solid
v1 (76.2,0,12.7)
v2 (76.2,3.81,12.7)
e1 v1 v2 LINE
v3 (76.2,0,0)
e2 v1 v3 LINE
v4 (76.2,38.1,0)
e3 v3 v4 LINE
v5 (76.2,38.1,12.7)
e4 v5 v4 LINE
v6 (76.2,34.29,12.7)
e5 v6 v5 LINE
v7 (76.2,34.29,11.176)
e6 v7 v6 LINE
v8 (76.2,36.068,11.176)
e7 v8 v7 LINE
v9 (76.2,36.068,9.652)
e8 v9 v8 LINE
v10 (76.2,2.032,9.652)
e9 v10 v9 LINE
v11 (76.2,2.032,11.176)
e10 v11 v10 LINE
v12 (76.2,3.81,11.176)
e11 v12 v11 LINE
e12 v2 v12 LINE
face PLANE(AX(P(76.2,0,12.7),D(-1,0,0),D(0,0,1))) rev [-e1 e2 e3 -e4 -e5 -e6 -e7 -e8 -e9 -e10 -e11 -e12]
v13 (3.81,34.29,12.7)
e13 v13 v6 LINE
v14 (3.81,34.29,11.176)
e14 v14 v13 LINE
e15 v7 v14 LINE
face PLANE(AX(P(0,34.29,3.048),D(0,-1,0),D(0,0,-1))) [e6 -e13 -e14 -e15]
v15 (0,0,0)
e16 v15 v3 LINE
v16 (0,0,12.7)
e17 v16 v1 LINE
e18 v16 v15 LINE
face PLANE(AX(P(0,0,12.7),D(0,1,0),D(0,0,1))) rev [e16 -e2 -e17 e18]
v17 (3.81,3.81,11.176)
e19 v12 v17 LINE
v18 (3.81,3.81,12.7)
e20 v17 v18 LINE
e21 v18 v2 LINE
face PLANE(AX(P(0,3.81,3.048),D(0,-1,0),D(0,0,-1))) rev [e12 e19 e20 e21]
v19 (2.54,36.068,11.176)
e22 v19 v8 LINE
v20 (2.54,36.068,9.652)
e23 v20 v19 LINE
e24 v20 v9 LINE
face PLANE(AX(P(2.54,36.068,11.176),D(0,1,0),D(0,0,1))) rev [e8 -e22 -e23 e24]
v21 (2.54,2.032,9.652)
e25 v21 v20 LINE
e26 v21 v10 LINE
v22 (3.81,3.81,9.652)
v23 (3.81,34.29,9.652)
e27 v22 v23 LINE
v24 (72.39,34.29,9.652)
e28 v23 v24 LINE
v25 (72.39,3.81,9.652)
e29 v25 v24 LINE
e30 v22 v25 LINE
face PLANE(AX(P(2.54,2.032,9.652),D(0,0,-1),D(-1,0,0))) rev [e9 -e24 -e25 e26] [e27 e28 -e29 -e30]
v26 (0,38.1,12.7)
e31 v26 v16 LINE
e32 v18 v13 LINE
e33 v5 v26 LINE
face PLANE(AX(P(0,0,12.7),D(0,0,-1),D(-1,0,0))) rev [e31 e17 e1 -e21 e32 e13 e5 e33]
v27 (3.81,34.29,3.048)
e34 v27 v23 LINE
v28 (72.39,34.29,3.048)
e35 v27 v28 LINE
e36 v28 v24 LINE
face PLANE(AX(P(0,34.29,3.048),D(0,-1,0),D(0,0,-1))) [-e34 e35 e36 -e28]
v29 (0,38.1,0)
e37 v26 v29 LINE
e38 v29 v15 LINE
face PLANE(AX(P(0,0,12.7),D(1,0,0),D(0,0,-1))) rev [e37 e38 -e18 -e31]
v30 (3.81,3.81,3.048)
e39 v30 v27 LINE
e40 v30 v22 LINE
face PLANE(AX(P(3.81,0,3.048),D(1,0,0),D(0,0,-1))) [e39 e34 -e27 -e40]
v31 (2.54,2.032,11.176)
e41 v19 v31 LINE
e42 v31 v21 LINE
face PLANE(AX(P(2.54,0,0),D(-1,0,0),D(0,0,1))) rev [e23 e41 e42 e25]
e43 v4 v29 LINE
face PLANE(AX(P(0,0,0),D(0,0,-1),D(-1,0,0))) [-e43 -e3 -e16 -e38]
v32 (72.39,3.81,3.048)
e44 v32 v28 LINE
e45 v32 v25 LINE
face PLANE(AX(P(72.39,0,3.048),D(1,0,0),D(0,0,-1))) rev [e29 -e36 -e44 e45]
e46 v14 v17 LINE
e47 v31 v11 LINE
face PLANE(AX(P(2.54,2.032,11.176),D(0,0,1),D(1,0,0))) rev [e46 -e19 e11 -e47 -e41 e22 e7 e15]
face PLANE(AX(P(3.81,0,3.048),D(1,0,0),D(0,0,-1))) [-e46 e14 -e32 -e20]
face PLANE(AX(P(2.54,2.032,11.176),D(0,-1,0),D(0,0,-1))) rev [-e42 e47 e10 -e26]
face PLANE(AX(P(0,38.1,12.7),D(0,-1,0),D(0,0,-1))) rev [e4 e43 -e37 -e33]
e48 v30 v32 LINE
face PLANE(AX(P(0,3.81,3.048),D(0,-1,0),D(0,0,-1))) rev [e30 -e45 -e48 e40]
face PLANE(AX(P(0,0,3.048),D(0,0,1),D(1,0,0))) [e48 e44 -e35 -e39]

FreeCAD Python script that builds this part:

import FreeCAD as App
import Part
import Sketcher

V = App.Vector
Q = App.Units.Quantity


def add_polygon(sketch, points):
    """Adds a closed chain of lines whose ends are joined by coincident constraints."""
    first, n = sketch.GeometryCount, len(points)
    for a, b in zip(points, points[1:] + points[:1]):
        sketch.addGeometry(Part.LineSegment(App.Vector(*a, 0), App.Vector(*b, 0)), False)
    for i in range(n):
        sketch.addConstraint(Sketcher.Constraint("Coincident", first + i, 2, first + (i + 1) % n, 1))

doc = App.newDocument("Part")
body = doc.addObject("PartDesign::Body", "Body")

# Sketch on XY plane
sketch1 = body.newObject("Sketcher::SketchObject", "Sketch")
sketch1.AttachmentSupport = (doc.getObject("XY_Plane"), [""])
sketch1.MapMode = "FlatFace"
add_polygon(sketch1, [(0, 38.1), (0, 0), (76.2, 0), (76.2, 38.1)])  # lines 0-3
sketch1.addConstraint([
    Sketcher.Constraint("Vertical", 0),
    Sketcher.Constraint("Horizontal", 1),
    Sketcher.Constraint("Vertical", 2),
    Sketcher.Constraint("Horizontal", 3),
    Sketcher.Constraint("Coincident", 0, 2, -1, 1),
    Sketcher.Constraint("DistanceX", 1, 1, 1, 2, Q("3 in")),
    Sketcher.Constraint("DistanceY", 0, 2, 0, 1, Q("1.5 in")),
])
pad1 = body.newObject("PartDesign::Pad", "Pad")
pad1.Profile = sketch1
pad1.Length = Q("0.5 in")

# Sketch on XY plane
sketch2 = body.newObject("Sketcher::SketchObject", "Sketch001")
sketch2.AttachmentSupport = (doc.getObject("XY_Plane"), [""])
sketch2.MapMode = "FlatFace"
sketch2.AttachmentOffset = App.Placement(V(0, 0, 0.5 * 25.4), App.Rotation())
add_polygon(sketch2, [(3.81, 34.29), (3.81, 3.81), (72.39, 3.81), (72.39, 34.29)])  # lines 0-3
sketch2.addConstraint([
    Sketcher.Constraint("Vertical", 0),
    Sketcher.Constraint("Horizontal", 1),
    Sketcher.Constraint("Vertical", 2),
    Sketcher.Constraint("Horizontal", 3),
    Sketcher.Constraint("DistanceX", 1, 1, 1, 2, Q("2.7 in")),
    Sketcher.Constraint("DistanceY", 0, 2, 0, 1, Q("1.2 in")),
    Sketcher.Constraint("DistanceX", -1, 1, 0, 2, Q("0.15 in")),
    Sketcher.Constraint("DistanceY", -1, 1, 0, 2, Q("0.15 in")),
])
pocket1 = body.newObject("PartDesign::Pocket", "Pocket")
pocket1.Profile = sketch2
pocket1.Length = Q("0.38 in")

# Sketch on YZ plane
sketch3 = body.newObject("Sketcher::SketchObject", "Sketch002")
sketch3.AttachmentSupport = (doc.getObject("YZ_Plane"), [""])
sketch3.MapMode = "FlatFace"
sketch3.AttachmentOffset = App.Placement(V(0, 0, 3 * 25.4), App.Rotation())
add_polygon(sketch3, [(34.29, 12.7), (3.81, 12.7), (3.81, 10.16), (34.29, 10.16)])  # lines 0-3
sketch3.addConstraint([
    Sketcher.Constraint("Horizontal", 0),
    Sketcher.Constraint("Vertical", 1),
    Sketcher.Constraint("Horizontal", 2),
    Sketcher.Constraint("Vertical", 3),
    Sketcher.Constraint("DistanceX", 0, 2, 0, 1, Q("1.2 in")),
    Sketcher.Constraint("DistanceY", 1, 2, 1, 1, Q("0.1 in")),
    Sketcher.Constraint("DistanceY", -1, 1, 0, 2, Q("0.5 in")),
    Sketcher.Constraint("DistanceX", -1, 1, 0, 2, Q("0.15 in")),
])
pocket2 = body.newObject("PartDesign::Pocket", "Pocket001")
pocket2.Profile = sketch3
pocket2.Length = Q("0.15 in")

# Sketch on YZ plane
sketch4 = body.newObject("Sketcher::SketchObject", "Sketch003")
sketch4.AttachmentSupport = (doc.getObject("YZ_Plane"), [""])
sketch4.MapMode = "FlatFace"
sketch4.AttachmentOffset = App.Placement(V(0, 0, 3 * 25.4), App.Rotation())
add_polygon(sketch4, [(36.068, 11.176), (2.032, 11.176), (2.032, 9.652), (36.068, 9.652)])  # lines 0-3
sketch4.addConstraint([
    Sketcher.Constraint("Horizontal", 0),
    Sketcher.Constraint("Vertical", 1),
    Sketcher.Constraint("Horizontal", 2),
    Sketcher.Constraint("Vertical", 3),
    Sketcher.Constraint("DistanceX", 0, 2, 0, 1, Q("1.34 in")),
    Sketcher.Constraint("DistanceY", 1, 2, 1, 1, Q("0.06 in")),
    Sketcher.Constraint("DistanceX", -1, 1, 0, 2, Q("0.08 in")),
    Sketcher.Constraint("DistanceY", -1, 1, 0, 2, Q("0.44 in")),
])
pocket3 = body.newObject("PartDesign::Pocket", "Pocket002")
pocket3.Profile = sketch4
pocket3.Length = Q("2.9 in")

doc.recompute()
